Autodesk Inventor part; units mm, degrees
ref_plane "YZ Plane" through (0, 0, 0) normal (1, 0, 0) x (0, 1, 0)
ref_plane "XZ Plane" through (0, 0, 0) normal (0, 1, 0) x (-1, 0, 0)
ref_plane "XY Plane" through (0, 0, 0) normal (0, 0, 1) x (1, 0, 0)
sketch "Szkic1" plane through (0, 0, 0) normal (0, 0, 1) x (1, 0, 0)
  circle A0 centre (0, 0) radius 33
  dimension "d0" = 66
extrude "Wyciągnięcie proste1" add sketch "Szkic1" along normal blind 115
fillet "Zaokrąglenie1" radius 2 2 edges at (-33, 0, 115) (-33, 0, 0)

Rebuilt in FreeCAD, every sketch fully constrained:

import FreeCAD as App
import Part
import Sketcher
Q = App.Units.Quantity


def edges_at(feature, points):
    """Names of the edges that pass closest to the given points."""
    edges = feature.Shape.Edges
    near = lambda p: min(range(len(edges)), key=lambda i: edges[i].distToShape(Part.Vertex(*p))[0])
    return sorted({f"Edge{near(p) + 1}" for p in points})

doc = App.newDocument("Part")
body = doc.addObject("PartDesign::Body", "Body")

# Sketch on XY plane
sketch1 = body.newObject("Sketcher::SketchObject", "Sketch")
sketch1.AttachmentSupport = (doc.getObject("XY_Plane"), [""])
sketch1.MapMode = "FlatFace"
sketch1.addGeometry(Part.Circle(App.Vector(0, 0, 0), App.Vector(0, 0, 1), 33), False)
sketch1.addConstraint([
    Sketcher.Constraint("Coincident", 0, 3, -1, 1),
    Sketcher.Constraint("Diameter", 0, Q("66 mm")),
])
pad1 = body.newObject("PartDesign::Pad", "Pad")
pad1.Profile = sketch1
pad1.Length = 115
doc.recompute()

fillet = body.newObject("PartDesign::Fillet", "Fillet")
fillet.Base = (pad1, edges_at(pad1, [(-33, 0, 115), (-33, 0, 0)]))
fillet.Radius = 2

doc.recompute()
